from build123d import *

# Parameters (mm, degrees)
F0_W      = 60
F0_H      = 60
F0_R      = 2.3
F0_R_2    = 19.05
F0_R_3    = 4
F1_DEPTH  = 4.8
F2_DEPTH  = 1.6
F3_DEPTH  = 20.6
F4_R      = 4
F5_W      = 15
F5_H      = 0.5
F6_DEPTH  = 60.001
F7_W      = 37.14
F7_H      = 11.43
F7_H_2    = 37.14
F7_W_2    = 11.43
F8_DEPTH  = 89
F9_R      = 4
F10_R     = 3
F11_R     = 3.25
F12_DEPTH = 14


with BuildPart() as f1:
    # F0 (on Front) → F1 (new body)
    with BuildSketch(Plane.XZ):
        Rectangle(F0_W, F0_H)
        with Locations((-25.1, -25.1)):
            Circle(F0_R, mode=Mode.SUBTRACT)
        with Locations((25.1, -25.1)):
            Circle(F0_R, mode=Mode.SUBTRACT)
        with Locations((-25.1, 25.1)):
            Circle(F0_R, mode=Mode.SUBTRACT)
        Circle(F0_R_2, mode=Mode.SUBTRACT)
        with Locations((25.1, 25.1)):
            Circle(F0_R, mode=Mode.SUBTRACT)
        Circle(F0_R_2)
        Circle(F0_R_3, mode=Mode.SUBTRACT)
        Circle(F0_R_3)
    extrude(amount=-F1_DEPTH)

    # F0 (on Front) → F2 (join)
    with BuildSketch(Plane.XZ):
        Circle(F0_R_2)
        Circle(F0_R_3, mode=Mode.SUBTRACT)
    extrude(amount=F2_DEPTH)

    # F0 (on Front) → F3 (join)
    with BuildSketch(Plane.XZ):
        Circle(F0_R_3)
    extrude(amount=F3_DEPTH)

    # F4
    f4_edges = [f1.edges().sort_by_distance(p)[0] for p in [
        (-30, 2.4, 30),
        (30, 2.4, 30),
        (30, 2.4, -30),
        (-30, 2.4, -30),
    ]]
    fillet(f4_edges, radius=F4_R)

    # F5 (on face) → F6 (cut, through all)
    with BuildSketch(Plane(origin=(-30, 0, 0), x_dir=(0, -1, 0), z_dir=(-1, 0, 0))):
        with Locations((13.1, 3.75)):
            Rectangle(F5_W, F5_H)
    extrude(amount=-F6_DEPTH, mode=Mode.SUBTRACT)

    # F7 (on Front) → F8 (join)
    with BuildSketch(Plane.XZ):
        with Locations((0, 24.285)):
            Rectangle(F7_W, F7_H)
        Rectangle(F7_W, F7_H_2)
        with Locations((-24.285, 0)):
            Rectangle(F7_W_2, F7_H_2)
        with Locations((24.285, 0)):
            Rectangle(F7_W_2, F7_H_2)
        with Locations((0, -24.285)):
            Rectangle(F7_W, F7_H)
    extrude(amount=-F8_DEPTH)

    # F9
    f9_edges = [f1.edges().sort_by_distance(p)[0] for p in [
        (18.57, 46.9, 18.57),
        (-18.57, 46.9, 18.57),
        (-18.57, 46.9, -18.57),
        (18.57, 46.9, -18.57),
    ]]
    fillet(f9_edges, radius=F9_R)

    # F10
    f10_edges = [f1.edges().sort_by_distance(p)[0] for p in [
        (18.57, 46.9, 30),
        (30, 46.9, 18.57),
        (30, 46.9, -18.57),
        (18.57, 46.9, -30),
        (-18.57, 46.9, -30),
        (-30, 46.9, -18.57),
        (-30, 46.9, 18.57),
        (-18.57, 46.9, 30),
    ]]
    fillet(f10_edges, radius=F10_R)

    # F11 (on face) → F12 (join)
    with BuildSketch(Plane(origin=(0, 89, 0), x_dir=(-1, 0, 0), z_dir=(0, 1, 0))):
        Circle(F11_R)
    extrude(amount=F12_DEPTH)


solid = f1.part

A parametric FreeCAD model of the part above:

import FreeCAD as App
import Part
import Sketcher

V = App.Vector


def edges_at(feature, points):
    """Names of the edges that pass closest to the given points."""
    edges = feature.Shape.Edges
    near = lambda p: min(range(len(edges)), key=lambda i: edges[i].distToShape(Part.Vertex(*p))[0])
    return sorted({f"Edge{near(p) + 1}" for p in points})


def add_polygon(sketch, points):
    """Adds a closed chain of lines whose ends are joined by coincident constraints."""
    first, n = sketch.GeometryCount, len(points)
    for a, b in zip(points, points[1:] + points[:1]):
        sketch.addGeometry(Part.LineSegment(App.Vector(*a, 0), App.Vector(*b, 0)), False)
    for i in range(n):
        sketch.addConstraint(Sketcher.Constraint("Coincident", first + i, 2, first + (i + 1) % n, 1))

doc = App.newDocument("Part")
body = doc.addObject("PartDesign::Body", "Body")

# Sketch on XZ plane
sketch1 = body.newObject("Sketcher::SketchObject", "Sketch")
sketch1.AttachmentSupport = (doc.getObject("XZ_Plane"), [""])
sketch1.MapMode = "FlatFace"
add_polygon(sketch1, [(-30, 30), (-30, -30), (30, -30), (30, 30)])  # lines 0-3
sketch1.addGeometry(Part.Circle(V(-25.1, -25.1, 0), V(0, 0, 1), 2.3), False)  # 4
sketch1.addGeometry(Part.Circle(V(25.1, -25.1, 0), V(0, 0, 1), 2.3), False)  # 5
sketch1.addGeometry(Part.Circle(V(-25.1, 25.1, 0), V(0, 0, 1), 2.3), False)  # 6
sketch1.addGeometry(Part.Circle(V(25.1, 25.1, 0), V(0, 0, 1), 2.3), False)  # 7
sketch1.addConstraint([
    Sketcher.Constraint("Vertical", 0),
    Sketcher.Constraint("Horizontal", 1),
    Sketcher.Constraint("Vertical", 2),
    Sketcher.Constraint("Horizontal", 3),
    Sketcher.Constraint("Equal", 4, 5),
    Sketcher.Constraint("Equal", 5, 6),
    Sketcher.Constraint("Equal", 6, 7),
    Sketcher.Constraint("Symmetric", 5, 3, 6, 3, -1, 1),
    Sketcher.Constraint("Symmetric", 4, 3, 7, 3, -1, 1),
    Sketcher.Constraint("Symmetric", 0, 2, 2, 2, -1, 1),
    Sketcher.Constraint("Symmetric", 4, 3, 5, 3, -2),
    Sketcher.Constraint("Equal", 3, 0),
    Sketcher.Constraint("Diameter", 4, 4.6),
    Sketcher.Constraint("DistanceX", 1, 1, 1, 2, 60.0),
    Sketcher.Constraint("DistanceX", 4, 3, -1, 1, 25.1),
    Sketcher.Constraint("DistanceY", 4, 3, -1, 1, 25.1),
])
pad1 = body.newObject("PartDesign::Pad", "Pad")
pad1.Profile = sketch1
pad1.Length = 4.8
pad1.Reversed = True

# Sketch on XZ plane
sketch2 = body.newObject("Sketcher::SketchObject", "Sketch001")
sketch2.AttachmentSupport = (doc.getObject("XZ_Plane"), [""])
sketch2.MapMode = "FlatFace"
sketch2.addGeometry([
    Part.Circle(V(0, 0, 0), V(0, 0, 1), 19.05),
    Part.Circle(V(0, 0, 0), V(0, 0, 1), 4),
], False)
sketch2.addConstraint([
    Sketcher.Constraint("Coincident", 0, 3, -1, 1),
    Sketcher.Constraint("Coincident", 1, 3, -1, 1),
    Sketcher.Constraint("Diameter", 1, 8.0),
    Sketcher.Constraint("Diameter", 0, 38.1),
])
pad2 = body.newObject("PartDesign::Pad", "Pad001")
pad2.Profile = sketch2
pad2.Length = 1.6

# Sketch on XZ plane
sketch3 = body.newObject("Sketcher::SketchObject", "Sketch002")
sketch3.AttachmentSupport = (doc.getObject("XZ_Plane"), [""])
sketch3.MapMode = "FlatFace"
sketch3.addGeometry(Part.Circle(V(0, 0, 0), V(0, 0, 1), 4), False)
sketch3.addConstraint([
    Sketcher.Constraint("Coincident", 0, 3, -1, 1),
    Sketcher.Constraint("Diameter", 0, 8.0),
])
pad3 = body.newObject("PartDesign::Pad", "Pad002")
pad3.Profile = sketch3
pad3.Length = 20.6
doc.recompute()

fillet = body.newObject("PartDesign::Fillet", "Fillet")
fillet.Base = (pad3, edges_at(pad3, [
    (-30, 2.4, 30),
    (30, 2.4, 30),
    (30, 2.4, -30),
    (-30, 2.4, -30),
]))
fillet.Radius = 4

# Sketch on YZ plane
sketch4 = body.newObject("Sketcher::SketchObject", "Sketch003")
sketch4.AttachmentSupport = (doc.getObject("YZ_Plane"), [""])
sketch4.MapMode = "FlatFace"
sketch4.AttachmentOffset = App.Placement(V(0, 0, -30), App.Rotation())
add_polygon(sketch4, [(-5.6, 4), (-5.6, 3.5), (-20.6, 3.5), (-20.6, 4)])  # lines 0-3
sketch4.addConstraint([
    Sketcher.Constraint("Vertical", 0),
    Sketcher.Constraint("Horizontal", 1),
    Sketcher.Constraint("Vertical", 2),
    Sketcher.Constraint("Horizontal", 3),
    Sketcher.Constraint("DistanceX", 1, 2, 1, 1, 15.0),
    Sketcher.Constraint("DistanceY", 0, 2, 0, 1, 0.5),
    Sketcher.Constraint("DistanceY", -1, 1, 2, 2, 4.0),
    Sketcher.Constraint("DistanceX", 0, 2, -1, 1, 5.6),
])
pocket1 = body.newObject("PartDesign::Pocket", "Pocket")
pocket1.Profile = sketch4
pocket1.Type = "ThroughAll"
pocket1.Reversed = True

# Sketch on XZ plane
sketch5 = body.newObject("Sketcher::SketchObject", "Sketch004")
sketch5.AttachmentSupport = (doc.getObject("XZ_Plane"), [""])
sketch5.MapMode = "FlatFace"
add_polygon(sketch5, [(-18.57, 30), (-18.57, 18.57), (-30, 18.57), (-30, -18.57), (-18.57, -18.57), (-18.57, -30), (18.57, -30), (18.57, -18.57), (30, -18.57), (30, 18.57), (18.57, 18.57), (18.57, 30)])  # lines 0-11
sketch5.addConstraint([
    Sketcher.Constraint("Vertical", 0),
    Sketcher.Constraint("Horizontal", 1),
    Sketcher.Constraint("Vertical", 2),
    Sketcher.Constraint("Horizontal", 3),
    Sketcher.Constraint("Vertical", 4),
    Sketcher.Constraint("Horizontal", 5),
    Sketcher.Constraint("Vertical", 6),
    Sketcher.Constraint("Horizontal", 7),
    Sketcher.Constraint("Vertical", 8),
    Sketcher.Constraint("Horizontal", 9),
    Sketcher.Constraint("Vertical", 10),
    Sketcher.Constraint("Horizontal", 11),
    Sketcher.Constraint("Symmetric", 0, 2, 6, 2, -1, 1),
    Sketcher.Constraint("Symmetric", 2, 2, 8, 2, -1, 1),
    Sketcher.Constraint("Symmetric", 4, 2, 10, 2, -1, 1),
    Sketcher.Constraint("Symmetric", 3, 2, 6, 2, -2),
    Sketcher.Constraint("Equal", 9, 0),
    Sketcher.Constraint("Equal", 11, 2),
    Sketcher.Constraint("DistanceX", 1, 2, -1, 1, 30.0),
    Sketcher.Constraint("DistanceX", 1, 2, 1, 1, 11.43),
])
pad4 = body.newObject("PartDesign::Pad", "Pad003")
pad4.Profile = sketch5
pad4.Length = 89
pad4.Reversed = True
doc.recompute()

fillet2 = body.newObject("PartDesign::Fillet", "Fillet001")
fillet2.Base = (pad4, edges_at(pad4, [
    (18.57, 46.9, 18.57),
    (-18.57, 46.9, 18.57),
    (-18.57, 46.9, -18.57),
    (18.57, 46.9, -18.57),
]))
fillet2.Radius = 4
doc.recompute()

fillet3 = body.newObject("PartDesign::Fillet", "Fillet002")
fillet3.Base = (fillet2, edges_at(fillet2, [
    (18.57, 46.9, 30),
    (30, 46.9, 18.57),
    (30, 46.9, -18.57),
    (18.57, 46.9, -30),
    (-18.57, 46.9, -30),
    (-30, 46.9, -18.57),
    (-30, 46.9, 18.57),
    (-18.57, 46.9, 30),
]))
fillet3.Radius = 3

# Sketch on XZ plane
sketch6 = body.newObject("Sketcher::SketchObject", "Sketch005")
sketch6.AttachmentSupport = (doc.getObject("XZ_Plane"), [""])
sketch6.MapMode = "FlatFace"
sketch6.AttachmentOffset = App.Placement(V(0, 0, -89), App.Rotation())
sketch6.addGeometry(Part.Circle(V(0, 0, 0), V(0, 0, 1), 3.25), False)
sketch6.addConstraint([
    Sketcher.Constraint("Coincident", 0, 3, -1, 1),
    Sketcher.Constraint("Diameter", 0, 6.5),
])
pad5 = body.newObject("PartDesign::Pad", "Pad004")
pad5.Profile = sketch6
pad5.Length = 14
pad5.Reversed = True

doc.recompute()
